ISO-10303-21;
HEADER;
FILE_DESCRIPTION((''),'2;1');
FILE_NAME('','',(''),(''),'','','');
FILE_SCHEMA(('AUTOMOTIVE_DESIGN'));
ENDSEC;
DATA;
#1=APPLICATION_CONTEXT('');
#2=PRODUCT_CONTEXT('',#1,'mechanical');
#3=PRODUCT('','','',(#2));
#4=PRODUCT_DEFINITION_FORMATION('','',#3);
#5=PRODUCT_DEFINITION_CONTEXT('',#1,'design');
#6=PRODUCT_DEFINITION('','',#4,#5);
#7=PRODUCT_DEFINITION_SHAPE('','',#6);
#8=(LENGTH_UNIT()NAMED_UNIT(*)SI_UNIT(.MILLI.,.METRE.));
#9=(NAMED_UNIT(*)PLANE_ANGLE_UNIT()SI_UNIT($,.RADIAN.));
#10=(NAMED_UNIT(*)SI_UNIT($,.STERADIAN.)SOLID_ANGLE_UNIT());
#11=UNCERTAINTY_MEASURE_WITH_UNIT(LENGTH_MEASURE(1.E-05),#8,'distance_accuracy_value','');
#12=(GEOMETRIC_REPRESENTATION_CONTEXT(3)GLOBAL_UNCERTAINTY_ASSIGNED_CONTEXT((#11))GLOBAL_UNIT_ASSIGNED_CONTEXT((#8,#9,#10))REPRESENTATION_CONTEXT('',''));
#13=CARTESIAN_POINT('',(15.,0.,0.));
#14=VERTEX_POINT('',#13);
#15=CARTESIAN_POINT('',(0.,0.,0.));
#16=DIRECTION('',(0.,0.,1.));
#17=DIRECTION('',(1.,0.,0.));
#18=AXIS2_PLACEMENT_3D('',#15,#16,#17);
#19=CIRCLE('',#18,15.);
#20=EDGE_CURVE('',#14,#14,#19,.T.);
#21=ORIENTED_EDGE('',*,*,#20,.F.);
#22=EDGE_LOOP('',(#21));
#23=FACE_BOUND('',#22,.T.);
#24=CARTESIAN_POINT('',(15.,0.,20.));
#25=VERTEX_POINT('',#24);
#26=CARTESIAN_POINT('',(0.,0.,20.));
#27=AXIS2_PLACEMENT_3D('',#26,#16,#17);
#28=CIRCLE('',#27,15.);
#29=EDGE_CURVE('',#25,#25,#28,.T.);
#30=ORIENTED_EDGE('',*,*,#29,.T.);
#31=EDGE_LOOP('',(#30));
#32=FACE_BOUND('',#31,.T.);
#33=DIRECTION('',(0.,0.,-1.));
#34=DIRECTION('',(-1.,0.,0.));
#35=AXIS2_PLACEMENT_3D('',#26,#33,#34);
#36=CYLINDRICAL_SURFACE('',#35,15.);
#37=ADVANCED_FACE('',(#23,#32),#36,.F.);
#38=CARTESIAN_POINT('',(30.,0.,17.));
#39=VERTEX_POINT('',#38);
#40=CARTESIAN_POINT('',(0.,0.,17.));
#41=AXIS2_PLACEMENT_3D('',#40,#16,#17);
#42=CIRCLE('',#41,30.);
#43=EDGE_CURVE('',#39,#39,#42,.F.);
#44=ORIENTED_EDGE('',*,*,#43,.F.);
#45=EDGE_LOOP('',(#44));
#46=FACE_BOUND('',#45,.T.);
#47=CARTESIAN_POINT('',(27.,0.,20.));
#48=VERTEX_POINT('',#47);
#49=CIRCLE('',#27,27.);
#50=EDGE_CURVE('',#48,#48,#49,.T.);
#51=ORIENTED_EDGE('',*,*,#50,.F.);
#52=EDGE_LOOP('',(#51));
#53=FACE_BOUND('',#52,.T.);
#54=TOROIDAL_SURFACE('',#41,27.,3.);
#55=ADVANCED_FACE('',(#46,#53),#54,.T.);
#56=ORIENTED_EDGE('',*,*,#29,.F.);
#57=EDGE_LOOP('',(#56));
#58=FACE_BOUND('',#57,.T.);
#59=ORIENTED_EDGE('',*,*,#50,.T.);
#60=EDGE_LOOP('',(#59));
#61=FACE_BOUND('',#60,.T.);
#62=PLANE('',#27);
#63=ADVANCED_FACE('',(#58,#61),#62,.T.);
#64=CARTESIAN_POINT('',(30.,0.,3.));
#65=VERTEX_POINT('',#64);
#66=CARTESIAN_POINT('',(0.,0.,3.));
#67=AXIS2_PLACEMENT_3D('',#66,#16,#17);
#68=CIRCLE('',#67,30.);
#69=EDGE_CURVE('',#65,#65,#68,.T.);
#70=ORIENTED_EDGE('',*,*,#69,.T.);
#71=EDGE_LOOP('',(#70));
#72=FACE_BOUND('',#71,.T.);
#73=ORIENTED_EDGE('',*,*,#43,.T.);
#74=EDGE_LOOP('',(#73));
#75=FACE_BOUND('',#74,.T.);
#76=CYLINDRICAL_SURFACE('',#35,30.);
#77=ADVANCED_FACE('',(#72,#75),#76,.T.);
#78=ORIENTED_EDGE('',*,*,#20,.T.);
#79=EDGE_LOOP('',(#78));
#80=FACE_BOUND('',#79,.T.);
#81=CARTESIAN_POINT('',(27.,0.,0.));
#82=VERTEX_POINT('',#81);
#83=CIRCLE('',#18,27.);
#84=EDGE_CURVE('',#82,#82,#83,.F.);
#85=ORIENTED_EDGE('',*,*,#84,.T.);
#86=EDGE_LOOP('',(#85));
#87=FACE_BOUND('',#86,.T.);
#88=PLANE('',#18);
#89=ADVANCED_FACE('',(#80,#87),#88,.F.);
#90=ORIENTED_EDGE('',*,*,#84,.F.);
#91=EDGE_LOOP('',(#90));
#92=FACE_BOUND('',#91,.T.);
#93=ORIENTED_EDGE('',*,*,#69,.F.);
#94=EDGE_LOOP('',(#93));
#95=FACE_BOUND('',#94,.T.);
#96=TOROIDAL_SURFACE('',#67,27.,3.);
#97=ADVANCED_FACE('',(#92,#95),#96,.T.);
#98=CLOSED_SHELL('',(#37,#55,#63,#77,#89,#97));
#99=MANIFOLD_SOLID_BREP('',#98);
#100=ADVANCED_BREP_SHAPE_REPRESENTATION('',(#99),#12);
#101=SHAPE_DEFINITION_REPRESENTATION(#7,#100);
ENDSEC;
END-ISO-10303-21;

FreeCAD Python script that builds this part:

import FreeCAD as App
import Part
import Sketcher


def edges_at(feature, points):
    """Names of the edges that pass closest to the given points."""
    edges = feature.Shape.Edges
    near = lambda p: min(range(len(edges)), key=lambda i: edges[i].distToShape(Part.Vertex(*p))[0])
    return sorted({f"Edge{near(p) + 1}" for p in points})

doc = App.newDocument("Part")
body = doc.addObject("PartDesign::Body", "Body")

# Sketch on XY plane
sketch1 = body.newObject("Sketcher::SketchObject", "Sketch")
sketch1.AttachmentSupport = (doc.getObject("XY_Plane"), [""])
sketch1.MapMode = "FlatFace"
sketch1.addGeometry([
    Part.Circle(App.Vector(0, 0, 0), App.Vector(0, 0, 1), 30),
    Part.Circle(App.Vector(0, 0, 0), App.Vector(0, 0, 1), 15),
], False)
sketch1.addConstraint([
    Sketcher.Constraint("Coincident", 0, 3, -1, 1),
    Sketcher.Constraint("Coincident", 1, 3, -1, 1),
    Sketcher.Constraint("Diameter", 0, 60.0),
    Sketcher.Constraint("Diameter", 1, 30.0),
])
pad1 = body.newObject("PartDesign::Pad", "Pad")
pad1.Profile = sketch1
pad1.Length = 20
doc.recompute()

fillet = body.newObject("PartDesign::Fillet", "Fillet")
fillet.Base = (pad1, edges_at(pad1, [(-30, 0, 0), (-30, 0, 20)]))
fillet.Radius = 3

doc.recompute()
